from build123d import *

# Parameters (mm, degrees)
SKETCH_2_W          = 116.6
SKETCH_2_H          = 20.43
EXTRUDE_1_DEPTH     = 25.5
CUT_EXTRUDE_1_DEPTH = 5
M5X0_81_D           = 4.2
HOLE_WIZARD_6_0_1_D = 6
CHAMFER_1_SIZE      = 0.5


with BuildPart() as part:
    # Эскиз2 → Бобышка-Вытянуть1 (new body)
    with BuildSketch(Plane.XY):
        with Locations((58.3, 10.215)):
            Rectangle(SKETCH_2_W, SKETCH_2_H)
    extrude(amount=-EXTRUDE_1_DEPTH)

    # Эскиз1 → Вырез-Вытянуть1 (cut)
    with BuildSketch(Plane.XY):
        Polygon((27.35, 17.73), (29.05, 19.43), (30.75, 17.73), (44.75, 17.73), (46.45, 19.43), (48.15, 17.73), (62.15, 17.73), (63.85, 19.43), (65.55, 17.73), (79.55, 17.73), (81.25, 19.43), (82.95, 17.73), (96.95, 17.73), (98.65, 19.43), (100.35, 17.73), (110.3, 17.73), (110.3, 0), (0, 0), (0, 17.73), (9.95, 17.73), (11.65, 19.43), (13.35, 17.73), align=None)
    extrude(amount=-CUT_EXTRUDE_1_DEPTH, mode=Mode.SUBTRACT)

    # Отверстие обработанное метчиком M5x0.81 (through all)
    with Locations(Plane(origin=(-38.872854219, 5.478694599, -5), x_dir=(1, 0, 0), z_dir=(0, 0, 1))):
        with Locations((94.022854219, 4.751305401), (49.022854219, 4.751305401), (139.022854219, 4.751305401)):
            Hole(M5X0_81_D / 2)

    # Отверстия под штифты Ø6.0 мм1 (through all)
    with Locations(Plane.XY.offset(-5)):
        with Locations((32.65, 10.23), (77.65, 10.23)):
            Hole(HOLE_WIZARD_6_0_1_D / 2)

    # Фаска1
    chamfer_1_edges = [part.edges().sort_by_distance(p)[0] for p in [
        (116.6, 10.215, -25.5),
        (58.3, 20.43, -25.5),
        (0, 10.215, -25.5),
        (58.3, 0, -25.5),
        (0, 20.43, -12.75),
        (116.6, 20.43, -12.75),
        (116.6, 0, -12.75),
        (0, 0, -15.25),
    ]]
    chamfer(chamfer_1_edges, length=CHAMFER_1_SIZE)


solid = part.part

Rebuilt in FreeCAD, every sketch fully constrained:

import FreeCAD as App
import Part
import Sketcher

V = App.Vector
Q = App.Units.Quantity


def edges_at(feature, points):
    """Names of the edges that pass closest to the given points."""
    edges = feature.Shape.Edges
    near = lambda p: min(range(len(edges)), key=lambda i: edges[i].distToShape(Part.Vertex(*p))[0])
    return sorted({f"Edge{near(p) + 1}" for p in points})


def add_polygon(sketch, points):
    """Adds a closed chain of lines whose ends are joined by coincident constraints."""
    first, n = sketch.GeometryCount, len(points)
    for a, b in zip(points, points[1:] + points[:1]):
        sketch.addGeometry(Part.LineSegment(App.Vector(*a, 0), App.Vector(*b, 0)), False)
    for i in range(n):
        sketch.addConstraint(Sketcher.Constraint("Coincident", first + i, 2, first + (i + 1) % n, 1))

doc = App.newDocument("Part")
body = doc.addObject("PartDesign::Body", "Body")

sketch1 = doc.addObject("Sketcher::SketchObject", "Sketch")
body.addObject(sketch1)
sketch1.AttachmentSupport = (doc.XY_Plane, [""])
sketch1.MapMode = "FlatFace"
add_polygon(sketch1, [(0, 20.43), (0, 0), (116.6, 0), (116.6, 20.43)])
sketch1.addConstraint([
    Sketcher.Constraint("Vertical", 0),
    Sketcher.Constraint("Horizontal", 1),
    Sketcher.Constraint("Vertical", 2),
    Sketcher.Constraint("Horizontal", 3),
    Sketcher.Constraint("Coincident", 0, 2, -1, 1),
    Sketcher.Constraint("DistanceX", 1, 1, 1, 2, Q("116.6 mm")),
    Sketcher.Constraint("DistanceY", 0, 2, 0, 1, Q("20.43 mm")),
])
pad1 = doc.addObject("PartDesign::Pad", "Pad")
body.addObject(pad1)
pad1.Profile = sketch1
pad1.Length = 25.5
pad1.Reversed = True

sketch2 = doc.addObject("Sketcher::SketchObject", "Sketch001")
body.addObject(sketch2)
sketch2.AttachmentSupport = (doc.XY_Plane, [""])
sketch2.MapMode = "FlatFace"
add_polygon(sketch2, [(29.05, 19.43), (27.35, 17.73), (13.35, 17.73), (11.65, 19.43), (9.95, 17.73), (0, 17.73), (0, 0), (110.3, 0), (110.3, 17.73), (100.35, 17.73), (98.65, 19.43), (96.95, 17.73), (82.95, 17.73), (81.25, 19.43), (79.55, 17.73), (65.55, 17.73), (63.85, 19.43), (62.15, 17.73), (48.15, 17.73), (46.45, 19.43), (44.75, 17.73), (30.75, 17.73)])
sketch2.addConstraint([
    Sketcher.Constraint("Horizontal", 1),
    Sketcher.Constraint("Horizontal", 4),
    Sketcher.Constraint("Vertical", 5),
    Sketcher.Constraint("Horizontal", 6),
    Sketcher.Constraint("Vertical", 7),
    Sketcher.Constraint("Horizontal", 8),
    Sketcher.Constraint("Horizontal", 11),
    Sketcher.Constraint("Horizontal", 14),
    Sketcher.Constraint("Horizontal", 17),
    Sketcher.Constraint("Horizontal", 20),
    Sketcher.Constraint("Coincident", 5, 2, -1, 1),
    Sketcher.Constraint("Perpendicular", 0, 2),
    Sketcher.Constraint("Perpendicular", 2, 3),
    Sketcher.Constraint("Perpendicular", 3, 9),
    Sketcher.Constraint("Perpendicular", 9, 10),
    Sketcher.Constraint("Perpendicular", 10, 12),
    Sketcher.Constraint("Perpendicular", 12, 13),
    Sketcher.Constraint("Perpendicular", 13, 15),
    Sketcher.Constraint("Perpendicular", 15, 16),
    Sketcher.Constraint("Perpendicular", 16, 18),
    Sketcher.Constraint("Perpendicular", 18, 19),
    Sketcher.Constraint("Perpendicular", 19, 21),
    Sketcher.Constraint("Horizontal", 1, 2, 3, 2),
    Sketcher.Constraint("Horizontal", 4, 2, 7, 2),
    Sketcher.Constraint("Horizontal", 2, 2, 9, 2),
    Sketcher.Constraint("Horizontal", 8, 2, 10, 2),
    Sketcher.Constraint("Horizontal", 9, 2, 12, 2),
    Sketcher.Constraint("Horizontal", 11, 2, 13, 2),
    Sketcher.Constraint("Horizontal", 12, 2, 15, 2),
    Sketcher.Constraint("Horizontal", 14, 2, 16, 2),
    Sketcher.Constraint("Horizontal", 15, 2, 18, 2),
    Sketcher.Constraint("Horizontal", 17, 2, 19, 2),
    Sketcher.Constraint("Horizontal", 18, 2, 21, 2),
    Sketcher.Constraint("Equal", 4, 8),
    Sketcher.Constraint("Equal", 1, 11),
    Sketcher.Constraint("Equal", 11, 14),
    Sketcher.Constraint("Equal", 14, 17),
    Sketcher.Constraint("Equal", 17, 20),
    Sketcher.Constraint("Equal", 0, 2),
    Sketcher.Constraint("DistanceX", 1, 2, 1, 1, Q("14 mm")),
    Sketcher.Constraint("DistanceX", 6, 1, 6, 2, Q("110.3 mm")),
    Sketcher.Constraint("DistanceX", 0, 2, 8, 2, Q("73 mm")),
    Sketcher.Constraint("DistanceY", 5, 2, 5, 1, Q("17.73 mm")),
])
pocket1 = doc.addObject("PartDesign::Pocket", "Pocket")
body.addObject(pocket1)
pocket1.Profile = sketch2
pocket1.Length = 5

sketch3 = doc.addObject("Sketcher::SketchObject", "Sketch002")
body.addObject(sketch3)
sketch3.AttachmentSupport = (doc.XY_Plane, [""])
sketch3.MapMode = "FlatFace"
sketch3.AttachmentOffset = App.Placement(V(0, 0, -5), App.Rotation())
sketch3.addGeometry([
    Part.Circle(V(55.15, 10.23, 0), V(0, 0, 1), 2.1),
    Part.Circle(V(10.15, 10.23, 0), V(0, 0, 1), 2.1),
    Part.Circle(V(100.15, 10.23, 0), V(0, 0, 1), 2.1),
], False)
sketch3.addConstraint([
    Sketcher.Constraint("Equal", 0, 1),
    Sketcher.Constraint("Equal", 1, 2),
    Sketcher.Constraint("Horizontal", 0, 3, 1, 3),
    Sketcher.Constraint("Horizontal", 1, 3, 2, 3),
    Sketcher.Constraint("Diameter", 0, Q("4.2 mm")),
    Sketcher.Constraint("DistanceX", 1, 3, 0, 3, Q("45 mm")),
    Sketcher.Constraint("DistanceX", 0, 3, 2, 3, Q("45 mm")),
    Sketcher.Constraint("DistanceX", -1, 1, 0, 3, Q("55.15 mm")),
    Sketcher.Constraint("DistanceY", -1, 1, 0, 3, Q("10.23 mm")),
])
doc.recompute()
hole = doc.addObject("PartDesign::Hole", "Hole")
body.addObject(hole)
hole.Profile = sketch3
hole.ThreadType = "None"
hole.Diameter = 4.2
hole.DepthType = "ThroughAll"

sketch4 = doc.addObject("Sketcher::SketchObject", "Sketch003")
body.addObject(sketch4)
sketch4.AttachmentSupport = (doc.XY_Plane, [""])
sketch4.MapMode = "FlatFace"
sketch4.AttachmentOffset = App.Placement(V(0, 0, -5), App.Rotation())
sketch4.addGeometry([
    Part.Circle(V(32.65, 10.23, 0), V(0, 0, 1), 3),
    Part.Circle(V(77.65, 10.23, 0), V(0, 0, 1), 3),
], False)
sketch4.addConstraint([
    Sketcher.Constraint("Equal", 0, 1),
    Sketcher.Constraint("Horizontal", 0, 3, 1, 3),
    Sketcher.Constraint("Diameter", 0, Q("6 mm")),
    Sketcher.Constraint("DistanceX", 0, 3, 1, 3, Q("45 mm")),
    Sketcher.Constraint("DistanceX", -1, 1, 0, 3, Q("32.65 mm")),
    Sketcher.Constraint("DistanceY", -1, 1, 0, 3, Q("10.23 mm")),
])
doc.recompute()
hole2 = doc.addObject("PartDesign::Hole", "Hole001")
body.addObject(hole2)
hole2.Profile = sketch4
hole2.ThreadType = "None"
hole2.Diameter = 6
hole2.DepthType = "ThroughAll"
doc.recompute()

chamfer = doc.addObject("PartDesign::Chamfer", "Chamfer")
body.addObject(chamfer)
chamfer.Base = (hole2, edges_at(hole2, [
    (116.6, 10.215, -25.5),
    (58.3, 20.43, -25.5),
    (0, 10.215, -25.5),
    (58.3, 0, -25.5),
    (0, 20.43, -12.75),
    (116.6, 20.43, -12.75),
    (116.6, 0, -12.75),
    (0, 0, -15.25),
]))
chamfer.Size = 0.5

doc.recompute()
